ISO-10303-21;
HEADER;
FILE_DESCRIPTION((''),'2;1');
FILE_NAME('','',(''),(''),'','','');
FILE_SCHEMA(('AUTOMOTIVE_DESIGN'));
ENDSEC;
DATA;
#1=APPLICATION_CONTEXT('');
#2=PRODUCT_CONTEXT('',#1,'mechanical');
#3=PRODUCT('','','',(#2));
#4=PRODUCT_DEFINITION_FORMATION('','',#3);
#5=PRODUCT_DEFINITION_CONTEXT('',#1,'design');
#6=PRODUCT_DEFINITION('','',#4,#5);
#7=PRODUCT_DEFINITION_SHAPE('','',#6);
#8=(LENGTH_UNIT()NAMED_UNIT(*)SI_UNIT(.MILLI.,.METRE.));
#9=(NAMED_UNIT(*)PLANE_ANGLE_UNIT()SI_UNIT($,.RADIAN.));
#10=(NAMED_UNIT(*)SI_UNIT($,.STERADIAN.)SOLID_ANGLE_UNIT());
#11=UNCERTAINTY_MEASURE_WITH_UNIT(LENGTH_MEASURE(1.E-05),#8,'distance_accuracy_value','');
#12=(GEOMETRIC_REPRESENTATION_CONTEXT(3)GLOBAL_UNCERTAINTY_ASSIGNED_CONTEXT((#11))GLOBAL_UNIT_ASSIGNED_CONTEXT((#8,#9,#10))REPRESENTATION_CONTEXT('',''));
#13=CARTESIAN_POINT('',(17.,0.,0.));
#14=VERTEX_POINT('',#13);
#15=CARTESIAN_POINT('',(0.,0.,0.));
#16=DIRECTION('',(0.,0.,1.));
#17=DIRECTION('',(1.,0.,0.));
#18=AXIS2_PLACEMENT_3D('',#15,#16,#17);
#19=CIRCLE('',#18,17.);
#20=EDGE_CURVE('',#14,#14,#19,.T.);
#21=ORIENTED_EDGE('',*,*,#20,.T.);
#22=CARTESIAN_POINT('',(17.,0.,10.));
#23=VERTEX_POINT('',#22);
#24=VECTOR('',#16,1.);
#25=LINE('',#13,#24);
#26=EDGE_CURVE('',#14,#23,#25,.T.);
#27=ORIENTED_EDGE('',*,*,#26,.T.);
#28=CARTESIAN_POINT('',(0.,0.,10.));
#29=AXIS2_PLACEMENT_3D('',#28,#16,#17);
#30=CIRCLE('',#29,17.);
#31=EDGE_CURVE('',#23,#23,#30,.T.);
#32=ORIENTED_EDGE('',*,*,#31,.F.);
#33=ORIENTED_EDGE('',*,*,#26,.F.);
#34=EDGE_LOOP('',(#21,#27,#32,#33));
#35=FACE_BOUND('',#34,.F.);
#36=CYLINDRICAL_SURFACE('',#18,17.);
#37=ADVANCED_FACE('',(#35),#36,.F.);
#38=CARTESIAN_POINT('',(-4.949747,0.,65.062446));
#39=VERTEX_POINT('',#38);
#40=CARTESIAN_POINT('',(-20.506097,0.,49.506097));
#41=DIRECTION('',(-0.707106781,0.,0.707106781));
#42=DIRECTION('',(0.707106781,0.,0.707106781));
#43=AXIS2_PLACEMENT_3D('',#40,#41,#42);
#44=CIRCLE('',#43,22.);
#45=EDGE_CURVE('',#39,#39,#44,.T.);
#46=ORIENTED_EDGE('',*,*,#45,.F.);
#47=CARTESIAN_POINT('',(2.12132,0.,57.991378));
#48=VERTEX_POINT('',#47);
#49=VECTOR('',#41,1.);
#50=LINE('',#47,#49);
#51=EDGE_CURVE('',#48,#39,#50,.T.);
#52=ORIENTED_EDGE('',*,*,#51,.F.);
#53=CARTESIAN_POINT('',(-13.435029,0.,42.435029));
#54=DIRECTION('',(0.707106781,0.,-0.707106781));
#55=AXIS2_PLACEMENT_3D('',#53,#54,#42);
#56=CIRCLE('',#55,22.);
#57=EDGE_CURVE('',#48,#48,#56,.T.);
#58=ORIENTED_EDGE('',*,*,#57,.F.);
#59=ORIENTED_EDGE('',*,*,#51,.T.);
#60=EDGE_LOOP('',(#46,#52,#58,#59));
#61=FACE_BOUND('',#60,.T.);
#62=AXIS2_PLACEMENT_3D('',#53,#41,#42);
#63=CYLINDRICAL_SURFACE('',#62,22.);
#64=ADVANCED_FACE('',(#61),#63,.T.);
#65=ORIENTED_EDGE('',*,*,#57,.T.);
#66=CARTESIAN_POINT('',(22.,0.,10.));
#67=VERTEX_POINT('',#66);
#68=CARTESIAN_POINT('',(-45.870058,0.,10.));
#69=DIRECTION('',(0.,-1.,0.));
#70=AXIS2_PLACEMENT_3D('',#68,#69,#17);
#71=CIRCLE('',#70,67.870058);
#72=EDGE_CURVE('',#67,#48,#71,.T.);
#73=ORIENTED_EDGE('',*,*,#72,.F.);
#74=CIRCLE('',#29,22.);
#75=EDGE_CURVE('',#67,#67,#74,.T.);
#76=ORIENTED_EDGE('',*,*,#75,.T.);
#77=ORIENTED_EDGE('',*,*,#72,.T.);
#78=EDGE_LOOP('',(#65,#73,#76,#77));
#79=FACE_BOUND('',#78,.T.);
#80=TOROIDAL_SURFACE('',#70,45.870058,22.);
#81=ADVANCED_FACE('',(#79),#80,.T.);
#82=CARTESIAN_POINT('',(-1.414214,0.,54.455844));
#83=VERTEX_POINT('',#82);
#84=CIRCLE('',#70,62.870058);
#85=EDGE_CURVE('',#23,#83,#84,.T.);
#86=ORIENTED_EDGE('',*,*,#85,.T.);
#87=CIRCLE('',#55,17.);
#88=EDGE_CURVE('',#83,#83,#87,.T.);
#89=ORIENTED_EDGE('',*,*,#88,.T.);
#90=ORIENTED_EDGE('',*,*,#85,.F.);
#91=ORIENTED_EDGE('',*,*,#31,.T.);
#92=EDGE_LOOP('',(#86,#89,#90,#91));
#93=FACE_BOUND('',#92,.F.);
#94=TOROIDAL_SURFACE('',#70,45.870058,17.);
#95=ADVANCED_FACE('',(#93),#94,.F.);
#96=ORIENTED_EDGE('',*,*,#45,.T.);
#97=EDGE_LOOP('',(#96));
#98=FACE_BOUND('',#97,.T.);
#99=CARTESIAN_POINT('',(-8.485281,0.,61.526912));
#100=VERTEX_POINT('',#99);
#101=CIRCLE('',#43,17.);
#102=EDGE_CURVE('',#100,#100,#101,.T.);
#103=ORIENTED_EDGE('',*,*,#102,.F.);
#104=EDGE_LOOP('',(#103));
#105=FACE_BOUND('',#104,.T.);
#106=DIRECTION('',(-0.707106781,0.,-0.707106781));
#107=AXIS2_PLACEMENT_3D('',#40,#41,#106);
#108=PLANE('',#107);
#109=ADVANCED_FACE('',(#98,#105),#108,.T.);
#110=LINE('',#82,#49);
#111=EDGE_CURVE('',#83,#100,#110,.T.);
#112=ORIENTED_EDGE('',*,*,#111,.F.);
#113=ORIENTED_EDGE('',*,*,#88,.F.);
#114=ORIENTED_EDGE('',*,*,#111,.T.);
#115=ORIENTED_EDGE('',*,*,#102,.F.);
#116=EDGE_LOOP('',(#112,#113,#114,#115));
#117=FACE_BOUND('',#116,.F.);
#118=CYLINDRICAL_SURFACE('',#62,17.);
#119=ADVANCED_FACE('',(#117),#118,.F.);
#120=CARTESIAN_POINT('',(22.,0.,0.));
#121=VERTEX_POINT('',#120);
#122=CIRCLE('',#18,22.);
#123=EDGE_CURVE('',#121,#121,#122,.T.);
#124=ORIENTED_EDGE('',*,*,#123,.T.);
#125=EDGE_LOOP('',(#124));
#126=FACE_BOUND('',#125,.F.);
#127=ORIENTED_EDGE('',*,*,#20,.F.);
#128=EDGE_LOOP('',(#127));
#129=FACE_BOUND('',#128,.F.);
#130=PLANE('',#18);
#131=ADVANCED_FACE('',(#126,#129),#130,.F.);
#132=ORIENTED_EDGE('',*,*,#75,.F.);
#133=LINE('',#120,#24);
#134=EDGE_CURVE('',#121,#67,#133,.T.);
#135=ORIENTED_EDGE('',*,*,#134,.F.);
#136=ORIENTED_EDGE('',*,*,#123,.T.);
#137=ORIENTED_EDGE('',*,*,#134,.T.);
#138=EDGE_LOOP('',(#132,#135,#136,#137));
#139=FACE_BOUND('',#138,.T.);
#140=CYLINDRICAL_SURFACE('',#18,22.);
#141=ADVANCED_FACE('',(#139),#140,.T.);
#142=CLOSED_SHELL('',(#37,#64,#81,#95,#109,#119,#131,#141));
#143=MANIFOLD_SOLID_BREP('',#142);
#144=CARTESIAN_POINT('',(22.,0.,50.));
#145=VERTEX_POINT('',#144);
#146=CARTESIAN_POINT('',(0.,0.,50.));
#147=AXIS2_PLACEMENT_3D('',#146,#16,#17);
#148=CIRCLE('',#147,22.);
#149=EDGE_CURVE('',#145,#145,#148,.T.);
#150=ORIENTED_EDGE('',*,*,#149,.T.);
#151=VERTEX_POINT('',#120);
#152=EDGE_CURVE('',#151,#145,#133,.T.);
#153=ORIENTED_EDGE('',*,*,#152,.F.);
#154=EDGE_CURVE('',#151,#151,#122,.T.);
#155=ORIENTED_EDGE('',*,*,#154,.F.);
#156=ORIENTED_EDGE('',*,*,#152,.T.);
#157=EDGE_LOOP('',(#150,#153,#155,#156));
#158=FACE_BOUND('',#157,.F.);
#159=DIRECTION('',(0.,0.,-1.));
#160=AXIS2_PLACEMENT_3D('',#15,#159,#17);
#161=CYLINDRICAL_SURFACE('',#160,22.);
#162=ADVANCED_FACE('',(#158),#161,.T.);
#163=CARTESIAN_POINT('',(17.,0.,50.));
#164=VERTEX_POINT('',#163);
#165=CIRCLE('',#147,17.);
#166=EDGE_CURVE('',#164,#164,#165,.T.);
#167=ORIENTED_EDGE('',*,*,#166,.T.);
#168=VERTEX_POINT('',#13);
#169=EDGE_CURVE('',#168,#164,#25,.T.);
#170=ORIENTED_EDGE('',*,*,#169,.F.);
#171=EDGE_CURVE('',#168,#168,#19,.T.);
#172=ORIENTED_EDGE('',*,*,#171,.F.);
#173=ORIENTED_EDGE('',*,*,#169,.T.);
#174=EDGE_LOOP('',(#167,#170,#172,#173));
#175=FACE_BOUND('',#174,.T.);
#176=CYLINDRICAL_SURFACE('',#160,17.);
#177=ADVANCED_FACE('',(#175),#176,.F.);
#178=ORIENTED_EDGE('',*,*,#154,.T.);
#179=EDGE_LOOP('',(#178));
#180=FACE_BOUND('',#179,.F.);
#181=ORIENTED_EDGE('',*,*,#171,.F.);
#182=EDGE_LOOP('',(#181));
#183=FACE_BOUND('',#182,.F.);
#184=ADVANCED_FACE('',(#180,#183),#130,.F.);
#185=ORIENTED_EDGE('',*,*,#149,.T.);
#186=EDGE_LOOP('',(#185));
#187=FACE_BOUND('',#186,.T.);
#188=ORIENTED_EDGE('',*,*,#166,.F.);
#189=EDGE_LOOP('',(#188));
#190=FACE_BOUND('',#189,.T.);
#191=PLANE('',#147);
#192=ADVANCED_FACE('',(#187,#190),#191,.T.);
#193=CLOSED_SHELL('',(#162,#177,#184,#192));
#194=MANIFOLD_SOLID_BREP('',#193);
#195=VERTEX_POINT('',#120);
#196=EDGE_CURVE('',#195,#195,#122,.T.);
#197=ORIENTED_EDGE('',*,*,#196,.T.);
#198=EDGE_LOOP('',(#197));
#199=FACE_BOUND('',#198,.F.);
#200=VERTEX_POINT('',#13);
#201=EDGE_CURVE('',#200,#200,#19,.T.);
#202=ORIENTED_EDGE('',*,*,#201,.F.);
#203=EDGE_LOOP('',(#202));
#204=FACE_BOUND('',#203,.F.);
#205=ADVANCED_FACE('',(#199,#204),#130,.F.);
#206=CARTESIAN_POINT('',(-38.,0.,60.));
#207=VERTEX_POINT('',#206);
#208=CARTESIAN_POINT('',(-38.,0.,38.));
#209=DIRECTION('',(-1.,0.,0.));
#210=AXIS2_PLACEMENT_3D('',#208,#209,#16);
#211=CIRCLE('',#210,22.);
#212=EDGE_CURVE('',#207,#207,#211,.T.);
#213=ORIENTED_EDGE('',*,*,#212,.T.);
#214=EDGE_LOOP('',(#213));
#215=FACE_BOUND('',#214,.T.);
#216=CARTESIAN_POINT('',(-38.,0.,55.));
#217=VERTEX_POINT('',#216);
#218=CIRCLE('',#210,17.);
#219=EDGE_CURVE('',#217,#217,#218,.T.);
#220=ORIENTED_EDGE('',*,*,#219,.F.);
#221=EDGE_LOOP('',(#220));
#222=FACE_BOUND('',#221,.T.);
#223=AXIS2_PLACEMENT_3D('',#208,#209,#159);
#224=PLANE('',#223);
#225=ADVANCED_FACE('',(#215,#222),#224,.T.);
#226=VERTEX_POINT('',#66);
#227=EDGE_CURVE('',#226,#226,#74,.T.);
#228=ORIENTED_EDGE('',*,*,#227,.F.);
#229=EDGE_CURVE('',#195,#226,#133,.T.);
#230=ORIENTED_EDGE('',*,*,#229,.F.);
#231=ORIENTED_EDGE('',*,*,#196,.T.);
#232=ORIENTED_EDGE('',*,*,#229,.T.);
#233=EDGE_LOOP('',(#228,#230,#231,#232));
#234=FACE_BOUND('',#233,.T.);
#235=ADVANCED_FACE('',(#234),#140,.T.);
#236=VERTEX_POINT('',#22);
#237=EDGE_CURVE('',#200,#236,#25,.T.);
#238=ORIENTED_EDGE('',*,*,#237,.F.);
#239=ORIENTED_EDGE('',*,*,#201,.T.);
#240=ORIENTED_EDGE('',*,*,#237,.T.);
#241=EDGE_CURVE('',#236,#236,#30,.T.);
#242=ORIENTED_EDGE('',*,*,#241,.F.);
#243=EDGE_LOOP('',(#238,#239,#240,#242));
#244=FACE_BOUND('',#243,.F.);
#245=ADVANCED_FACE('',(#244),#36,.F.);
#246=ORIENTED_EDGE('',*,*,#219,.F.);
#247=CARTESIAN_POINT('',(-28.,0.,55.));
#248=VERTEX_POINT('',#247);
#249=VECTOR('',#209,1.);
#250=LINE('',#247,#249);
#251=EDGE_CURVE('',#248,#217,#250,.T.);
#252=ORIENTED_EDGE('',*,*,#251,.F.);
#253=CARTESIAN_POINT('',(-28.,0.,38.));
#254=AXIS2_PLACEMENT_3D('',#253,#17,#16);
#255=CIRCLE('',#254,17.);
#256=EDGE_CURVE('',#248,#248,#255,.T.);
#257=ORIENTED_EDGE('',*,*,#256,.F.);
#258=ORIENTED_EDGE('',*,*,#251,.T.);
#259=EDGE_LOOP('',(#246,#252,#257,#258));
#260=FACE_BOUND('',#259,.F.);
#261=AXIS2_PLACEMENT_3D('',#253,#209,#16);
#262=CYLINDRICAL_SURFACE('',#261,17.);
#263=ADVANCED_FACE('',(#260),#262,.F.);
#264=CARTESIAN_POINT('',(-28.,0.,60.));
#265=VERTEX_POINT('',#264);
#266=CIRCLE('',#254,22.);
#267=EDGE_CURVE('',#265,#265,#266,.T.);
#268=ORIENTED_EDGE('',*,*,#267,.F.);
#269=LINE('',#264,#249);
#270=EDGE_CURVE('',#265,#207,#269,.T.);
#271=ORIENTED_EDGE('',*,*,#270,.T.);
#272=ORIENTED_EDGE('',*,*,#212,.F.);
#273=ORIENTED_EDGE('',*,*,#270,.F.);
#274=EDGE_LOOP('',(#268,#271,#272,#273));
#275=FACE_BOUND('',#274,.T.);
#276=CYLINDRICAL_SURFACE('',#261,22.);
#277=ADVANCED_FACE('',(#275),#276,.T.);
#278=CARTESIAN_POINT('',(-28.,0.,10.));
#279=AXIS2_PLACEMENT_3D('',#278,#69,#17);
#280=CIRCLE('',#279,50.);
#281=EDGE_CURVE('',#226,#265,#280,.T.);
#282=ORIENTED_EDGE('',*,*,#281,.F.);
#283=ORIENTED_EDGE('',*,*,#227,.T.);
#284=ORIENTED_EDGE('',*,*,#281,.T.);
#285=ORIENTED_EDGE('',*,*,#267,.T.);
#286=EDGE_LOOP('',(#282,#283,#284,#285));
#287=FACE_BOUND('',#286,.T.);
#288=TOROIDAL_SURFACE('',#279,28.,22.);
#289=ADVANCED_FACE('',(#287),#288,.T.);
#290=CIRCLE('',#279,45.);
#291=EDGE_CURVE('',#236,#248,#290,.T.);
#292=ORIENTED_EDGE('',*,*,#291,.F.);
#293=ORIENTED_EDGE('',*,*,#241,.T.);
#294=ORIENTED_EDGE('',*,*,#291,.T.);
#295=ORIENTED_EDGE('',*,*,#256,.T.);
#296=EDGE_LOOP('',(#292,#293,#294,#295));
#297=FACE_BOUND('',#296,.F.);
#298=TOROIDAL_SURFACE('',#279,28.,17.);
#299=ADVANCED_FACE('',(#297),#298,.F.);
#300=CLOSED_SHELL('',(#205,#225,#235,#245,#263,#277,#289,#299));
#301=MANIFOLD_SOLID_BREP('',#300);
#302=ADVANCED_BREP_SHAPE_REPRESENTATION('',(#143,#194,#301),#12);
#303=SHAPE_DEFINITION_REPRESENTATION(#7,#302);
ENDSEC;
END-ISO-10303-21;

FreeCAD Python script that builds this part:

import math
import FreeCAD as App
import Part
import Sketcher
from FreeCAD import Vector
Q = App.Units.Quantity

doc = App.newDocument("Part")
body = doc.addObject("PartDesign::Body", "Body")

# Sketch on XY plane
sketch1 = doc.addObject("Sketcher::SketchObject", "Sketch")
body.addObject(sketch1)
sketch1.AttachmentSupport = (doc.XY_Plane, [""])
sketch1.MapMode = "FlatFace"
sketch1.addGeometry(Part.Circle(Vector(0, 0, 0), Vector(0, 0, 1), 22), False)
sketch1.addGeometry(Part.Circle(Vector(0, 0, 0), Vector(0, 0, 1), 17), False)
sketch1.addConstraint(Sketcher.Constraint("Coincident", 0, 3, -1, 1))
sketch1.addConstraint(Sketcher.Constraint("Coincident", 1, 3, -1, 1))
sketch1.addConstraint(Sketcher.Constraint("Diameter", 0, Q("44 mm")))
sketch1.addConstraint(Sketcher.Constraint("Diameter", 1, Q("34 mm")))

# Sketch on XZ plane
sketch2 = doc.addObject("Sketcher::SketchObject", "Sketch001")
body.addObject(sketch2)
sketch2.AttachmentSupport = (doc.XZ_Plane, [""])
sketch2.MapMode = "FlatFace"
sketch2.addGeometry(Part.LineSegment(Vector(0, 0, 0), Vector(0, 10, 0)), False)
sketch2.addGeometry(Part.ArcOfCircle(Part.Circle(Vector(-28, 10, 0), Vector(0, 0, 1), 28), math.radians(0), math.radians(90)), False)
sketch2.addGeometry(Part.LineSegment(Vector(-28, 38, 0), Vector(-38, 38, 0)), False)
sketch2.addConstraint(Sketcher.Constraint("Tangent", 0, 2, 1, 1))
sketch2.addConstraint(Sketcher.Constraint("Tangent", 1, 2, 2, 1))
sketch2.addConstraint(Sketcher.Constraint("Vertical", 0))
sketch2.addConstraint(Sketcher.Constraint("Horizontal", 2))
sketch2.addConstraint(Sketcher.Constraint("Coincident", 0, 1, -1, 1))
sketch2.addConstraint(Sketcher.Constraint("Equal", 2, 0))
sketch2.addConstraint(Sketcher.Constraint("Radius", 1, Q("28 mm")))
sketch2.addConstraint(Sketcher.Constraint("DistanceX", 2, 2, 2, 1, Q("10 mm")))
doc.recompute()

additivepipe = doc.addObject("PartDesign::AdditivePipe", "AdditivePipe")
body.addObject(additivepipe)
additivepipe.Profile = sketch1
additivepipe.Spine = (sketch2, ["Edge1", "Edge2", "Edge3"])
body2 = doc.addObject("PartDesign::Body", "Body001")

# Sketch on XY plane
sketch3 = doc.addObject("Sketcher::SketchObject", "Sketch002")
body2.addObject(sketch3)
sketch3.AttachmentSupport = (doc.getObject("XY_Plane001"), [""])
sketch3.MapMode = "FlatFace"
sketch3.addGeometry(Part.Circle(Vector(0, 0, 0), Vector(0, 0, 1), 22), False)
sketch3.addGeometry(Part.Circle(Vector(0, 0, 0), Vector(0, 0, 1), 17), False)
sketch3.addConstraint(Sketcher.Constraint("Coincident", 0, 3, -1, 1))
sketch3.addConstraint(Sketcher.Constraint("Coincident", 1, 3, -1, 1))
sketch3.addConstraint(Sketcher.Constraint("Diameter", 0, Q("44 mm")))
sketch3.addConstraint(Sketcher.Constraint("Diameter", 1, Q("34 mm")))

# Sketch on XZ plane
sketch4 = doc.addObject("Sketcher::SketchObject", "Sketch003")
body2.addObject(sketch4)
sketch4.AttachmentSupport = (doc.getObject("XZ_Plane001"), [""])
sketch4.MapMode = "FlatFace"
sketch4.addGeometry(Part.LineSegment(Vector(0, 0, 0), Vector(0, 10, 0)), False)
sketch4.addGeometry(Part.ArcOfCircle(Part.Circle(Vector(-45.870058, 10, 0), Vector(0, 0, 1), 45.870058), math.radians(0), math.radians(45)), False)
sketch4.addGeometry(Part.LineSegment(Vector(-13.435029, 42.435029, 0), Vector(-20.506097, 49.506097, 0)), False)
sketch4.addConstraint(Sketcher.Constraint("Tangent", 0, 2, 1, 1))
sketch4.addConstraint(Sketcher.Constraint("Tangent", 1, 2, 2, 1))
sketch4.addConstraint(Sketcher.Constraint("Vertical", 0))
sketch4.addConstraint(Sketcher.Constraint("Coincident", 0, 1, -1, 1))
sketch4.addConstraint(Sketcher.Constraint("DistanceY", 0, 1, 0, 2, Q("10 mm")))
sketch4.addConstraint(Sketcher.Constraint("Angle", 2, Q("135 deg")))
sketch4.addConstraint(Sketcher.Constraint("Distance", 2, Q("10 mm")))
sketch4.addConstraint(Sketcher.Constraint("Radius", 1, Q("45.870058 mm")))
doc.recompute()

additivepipe2 = doc.addObject("PartDesign::AdditivePipe", "AdditivePipe001")
body2.addObject(additivepipe2)
additivepipe2.Profile = sketch3
additivepipe2.Spine = (sketch4, ["Edge1", "Edge2", "Edge3"])
body3 = doc.addObject("PartDesign::Body", "Body002")

# Sketch on XY plane
sketch5 = doc.addObject("Sketcher::SketchObject", "Sketch004")
body3.addObject(sketch5)
sketch5.AttachmentSupport = (doc.getObject("XY_Plane002"), [""])
sketch5.MapMode = "FlatFace"
sketch5.addGeometry(Part.Circle(Vector(0, 0, 0), Vector(0, 0, 1), 22), False)
sketch5.addGeometry(Part.Circle(Vector(0, 0, 0), Vector(0, 0, 1), 17), False)
sketch5.addConstraint(Sketcher.Constraint("Coincident", 0, 3, -1, 1))
sketch5.addConstraint(Sketcher.Constraint("Coincident", 1, 3, -1, 1))
sketch5.addConstraint(Sketcher.Constraint("Diameter", 0, Q("44 mm")))
sketch5.addConstraint(Sketcher.Constraint("Diameter", 1, Q("34 mm")))
pad1 = doc.addObject("PartDesign::Pad", "Pad")
body3.addObject(pad1)
pad1.Profile = sketch5
pad1.Length = 50

doc.recompute()
